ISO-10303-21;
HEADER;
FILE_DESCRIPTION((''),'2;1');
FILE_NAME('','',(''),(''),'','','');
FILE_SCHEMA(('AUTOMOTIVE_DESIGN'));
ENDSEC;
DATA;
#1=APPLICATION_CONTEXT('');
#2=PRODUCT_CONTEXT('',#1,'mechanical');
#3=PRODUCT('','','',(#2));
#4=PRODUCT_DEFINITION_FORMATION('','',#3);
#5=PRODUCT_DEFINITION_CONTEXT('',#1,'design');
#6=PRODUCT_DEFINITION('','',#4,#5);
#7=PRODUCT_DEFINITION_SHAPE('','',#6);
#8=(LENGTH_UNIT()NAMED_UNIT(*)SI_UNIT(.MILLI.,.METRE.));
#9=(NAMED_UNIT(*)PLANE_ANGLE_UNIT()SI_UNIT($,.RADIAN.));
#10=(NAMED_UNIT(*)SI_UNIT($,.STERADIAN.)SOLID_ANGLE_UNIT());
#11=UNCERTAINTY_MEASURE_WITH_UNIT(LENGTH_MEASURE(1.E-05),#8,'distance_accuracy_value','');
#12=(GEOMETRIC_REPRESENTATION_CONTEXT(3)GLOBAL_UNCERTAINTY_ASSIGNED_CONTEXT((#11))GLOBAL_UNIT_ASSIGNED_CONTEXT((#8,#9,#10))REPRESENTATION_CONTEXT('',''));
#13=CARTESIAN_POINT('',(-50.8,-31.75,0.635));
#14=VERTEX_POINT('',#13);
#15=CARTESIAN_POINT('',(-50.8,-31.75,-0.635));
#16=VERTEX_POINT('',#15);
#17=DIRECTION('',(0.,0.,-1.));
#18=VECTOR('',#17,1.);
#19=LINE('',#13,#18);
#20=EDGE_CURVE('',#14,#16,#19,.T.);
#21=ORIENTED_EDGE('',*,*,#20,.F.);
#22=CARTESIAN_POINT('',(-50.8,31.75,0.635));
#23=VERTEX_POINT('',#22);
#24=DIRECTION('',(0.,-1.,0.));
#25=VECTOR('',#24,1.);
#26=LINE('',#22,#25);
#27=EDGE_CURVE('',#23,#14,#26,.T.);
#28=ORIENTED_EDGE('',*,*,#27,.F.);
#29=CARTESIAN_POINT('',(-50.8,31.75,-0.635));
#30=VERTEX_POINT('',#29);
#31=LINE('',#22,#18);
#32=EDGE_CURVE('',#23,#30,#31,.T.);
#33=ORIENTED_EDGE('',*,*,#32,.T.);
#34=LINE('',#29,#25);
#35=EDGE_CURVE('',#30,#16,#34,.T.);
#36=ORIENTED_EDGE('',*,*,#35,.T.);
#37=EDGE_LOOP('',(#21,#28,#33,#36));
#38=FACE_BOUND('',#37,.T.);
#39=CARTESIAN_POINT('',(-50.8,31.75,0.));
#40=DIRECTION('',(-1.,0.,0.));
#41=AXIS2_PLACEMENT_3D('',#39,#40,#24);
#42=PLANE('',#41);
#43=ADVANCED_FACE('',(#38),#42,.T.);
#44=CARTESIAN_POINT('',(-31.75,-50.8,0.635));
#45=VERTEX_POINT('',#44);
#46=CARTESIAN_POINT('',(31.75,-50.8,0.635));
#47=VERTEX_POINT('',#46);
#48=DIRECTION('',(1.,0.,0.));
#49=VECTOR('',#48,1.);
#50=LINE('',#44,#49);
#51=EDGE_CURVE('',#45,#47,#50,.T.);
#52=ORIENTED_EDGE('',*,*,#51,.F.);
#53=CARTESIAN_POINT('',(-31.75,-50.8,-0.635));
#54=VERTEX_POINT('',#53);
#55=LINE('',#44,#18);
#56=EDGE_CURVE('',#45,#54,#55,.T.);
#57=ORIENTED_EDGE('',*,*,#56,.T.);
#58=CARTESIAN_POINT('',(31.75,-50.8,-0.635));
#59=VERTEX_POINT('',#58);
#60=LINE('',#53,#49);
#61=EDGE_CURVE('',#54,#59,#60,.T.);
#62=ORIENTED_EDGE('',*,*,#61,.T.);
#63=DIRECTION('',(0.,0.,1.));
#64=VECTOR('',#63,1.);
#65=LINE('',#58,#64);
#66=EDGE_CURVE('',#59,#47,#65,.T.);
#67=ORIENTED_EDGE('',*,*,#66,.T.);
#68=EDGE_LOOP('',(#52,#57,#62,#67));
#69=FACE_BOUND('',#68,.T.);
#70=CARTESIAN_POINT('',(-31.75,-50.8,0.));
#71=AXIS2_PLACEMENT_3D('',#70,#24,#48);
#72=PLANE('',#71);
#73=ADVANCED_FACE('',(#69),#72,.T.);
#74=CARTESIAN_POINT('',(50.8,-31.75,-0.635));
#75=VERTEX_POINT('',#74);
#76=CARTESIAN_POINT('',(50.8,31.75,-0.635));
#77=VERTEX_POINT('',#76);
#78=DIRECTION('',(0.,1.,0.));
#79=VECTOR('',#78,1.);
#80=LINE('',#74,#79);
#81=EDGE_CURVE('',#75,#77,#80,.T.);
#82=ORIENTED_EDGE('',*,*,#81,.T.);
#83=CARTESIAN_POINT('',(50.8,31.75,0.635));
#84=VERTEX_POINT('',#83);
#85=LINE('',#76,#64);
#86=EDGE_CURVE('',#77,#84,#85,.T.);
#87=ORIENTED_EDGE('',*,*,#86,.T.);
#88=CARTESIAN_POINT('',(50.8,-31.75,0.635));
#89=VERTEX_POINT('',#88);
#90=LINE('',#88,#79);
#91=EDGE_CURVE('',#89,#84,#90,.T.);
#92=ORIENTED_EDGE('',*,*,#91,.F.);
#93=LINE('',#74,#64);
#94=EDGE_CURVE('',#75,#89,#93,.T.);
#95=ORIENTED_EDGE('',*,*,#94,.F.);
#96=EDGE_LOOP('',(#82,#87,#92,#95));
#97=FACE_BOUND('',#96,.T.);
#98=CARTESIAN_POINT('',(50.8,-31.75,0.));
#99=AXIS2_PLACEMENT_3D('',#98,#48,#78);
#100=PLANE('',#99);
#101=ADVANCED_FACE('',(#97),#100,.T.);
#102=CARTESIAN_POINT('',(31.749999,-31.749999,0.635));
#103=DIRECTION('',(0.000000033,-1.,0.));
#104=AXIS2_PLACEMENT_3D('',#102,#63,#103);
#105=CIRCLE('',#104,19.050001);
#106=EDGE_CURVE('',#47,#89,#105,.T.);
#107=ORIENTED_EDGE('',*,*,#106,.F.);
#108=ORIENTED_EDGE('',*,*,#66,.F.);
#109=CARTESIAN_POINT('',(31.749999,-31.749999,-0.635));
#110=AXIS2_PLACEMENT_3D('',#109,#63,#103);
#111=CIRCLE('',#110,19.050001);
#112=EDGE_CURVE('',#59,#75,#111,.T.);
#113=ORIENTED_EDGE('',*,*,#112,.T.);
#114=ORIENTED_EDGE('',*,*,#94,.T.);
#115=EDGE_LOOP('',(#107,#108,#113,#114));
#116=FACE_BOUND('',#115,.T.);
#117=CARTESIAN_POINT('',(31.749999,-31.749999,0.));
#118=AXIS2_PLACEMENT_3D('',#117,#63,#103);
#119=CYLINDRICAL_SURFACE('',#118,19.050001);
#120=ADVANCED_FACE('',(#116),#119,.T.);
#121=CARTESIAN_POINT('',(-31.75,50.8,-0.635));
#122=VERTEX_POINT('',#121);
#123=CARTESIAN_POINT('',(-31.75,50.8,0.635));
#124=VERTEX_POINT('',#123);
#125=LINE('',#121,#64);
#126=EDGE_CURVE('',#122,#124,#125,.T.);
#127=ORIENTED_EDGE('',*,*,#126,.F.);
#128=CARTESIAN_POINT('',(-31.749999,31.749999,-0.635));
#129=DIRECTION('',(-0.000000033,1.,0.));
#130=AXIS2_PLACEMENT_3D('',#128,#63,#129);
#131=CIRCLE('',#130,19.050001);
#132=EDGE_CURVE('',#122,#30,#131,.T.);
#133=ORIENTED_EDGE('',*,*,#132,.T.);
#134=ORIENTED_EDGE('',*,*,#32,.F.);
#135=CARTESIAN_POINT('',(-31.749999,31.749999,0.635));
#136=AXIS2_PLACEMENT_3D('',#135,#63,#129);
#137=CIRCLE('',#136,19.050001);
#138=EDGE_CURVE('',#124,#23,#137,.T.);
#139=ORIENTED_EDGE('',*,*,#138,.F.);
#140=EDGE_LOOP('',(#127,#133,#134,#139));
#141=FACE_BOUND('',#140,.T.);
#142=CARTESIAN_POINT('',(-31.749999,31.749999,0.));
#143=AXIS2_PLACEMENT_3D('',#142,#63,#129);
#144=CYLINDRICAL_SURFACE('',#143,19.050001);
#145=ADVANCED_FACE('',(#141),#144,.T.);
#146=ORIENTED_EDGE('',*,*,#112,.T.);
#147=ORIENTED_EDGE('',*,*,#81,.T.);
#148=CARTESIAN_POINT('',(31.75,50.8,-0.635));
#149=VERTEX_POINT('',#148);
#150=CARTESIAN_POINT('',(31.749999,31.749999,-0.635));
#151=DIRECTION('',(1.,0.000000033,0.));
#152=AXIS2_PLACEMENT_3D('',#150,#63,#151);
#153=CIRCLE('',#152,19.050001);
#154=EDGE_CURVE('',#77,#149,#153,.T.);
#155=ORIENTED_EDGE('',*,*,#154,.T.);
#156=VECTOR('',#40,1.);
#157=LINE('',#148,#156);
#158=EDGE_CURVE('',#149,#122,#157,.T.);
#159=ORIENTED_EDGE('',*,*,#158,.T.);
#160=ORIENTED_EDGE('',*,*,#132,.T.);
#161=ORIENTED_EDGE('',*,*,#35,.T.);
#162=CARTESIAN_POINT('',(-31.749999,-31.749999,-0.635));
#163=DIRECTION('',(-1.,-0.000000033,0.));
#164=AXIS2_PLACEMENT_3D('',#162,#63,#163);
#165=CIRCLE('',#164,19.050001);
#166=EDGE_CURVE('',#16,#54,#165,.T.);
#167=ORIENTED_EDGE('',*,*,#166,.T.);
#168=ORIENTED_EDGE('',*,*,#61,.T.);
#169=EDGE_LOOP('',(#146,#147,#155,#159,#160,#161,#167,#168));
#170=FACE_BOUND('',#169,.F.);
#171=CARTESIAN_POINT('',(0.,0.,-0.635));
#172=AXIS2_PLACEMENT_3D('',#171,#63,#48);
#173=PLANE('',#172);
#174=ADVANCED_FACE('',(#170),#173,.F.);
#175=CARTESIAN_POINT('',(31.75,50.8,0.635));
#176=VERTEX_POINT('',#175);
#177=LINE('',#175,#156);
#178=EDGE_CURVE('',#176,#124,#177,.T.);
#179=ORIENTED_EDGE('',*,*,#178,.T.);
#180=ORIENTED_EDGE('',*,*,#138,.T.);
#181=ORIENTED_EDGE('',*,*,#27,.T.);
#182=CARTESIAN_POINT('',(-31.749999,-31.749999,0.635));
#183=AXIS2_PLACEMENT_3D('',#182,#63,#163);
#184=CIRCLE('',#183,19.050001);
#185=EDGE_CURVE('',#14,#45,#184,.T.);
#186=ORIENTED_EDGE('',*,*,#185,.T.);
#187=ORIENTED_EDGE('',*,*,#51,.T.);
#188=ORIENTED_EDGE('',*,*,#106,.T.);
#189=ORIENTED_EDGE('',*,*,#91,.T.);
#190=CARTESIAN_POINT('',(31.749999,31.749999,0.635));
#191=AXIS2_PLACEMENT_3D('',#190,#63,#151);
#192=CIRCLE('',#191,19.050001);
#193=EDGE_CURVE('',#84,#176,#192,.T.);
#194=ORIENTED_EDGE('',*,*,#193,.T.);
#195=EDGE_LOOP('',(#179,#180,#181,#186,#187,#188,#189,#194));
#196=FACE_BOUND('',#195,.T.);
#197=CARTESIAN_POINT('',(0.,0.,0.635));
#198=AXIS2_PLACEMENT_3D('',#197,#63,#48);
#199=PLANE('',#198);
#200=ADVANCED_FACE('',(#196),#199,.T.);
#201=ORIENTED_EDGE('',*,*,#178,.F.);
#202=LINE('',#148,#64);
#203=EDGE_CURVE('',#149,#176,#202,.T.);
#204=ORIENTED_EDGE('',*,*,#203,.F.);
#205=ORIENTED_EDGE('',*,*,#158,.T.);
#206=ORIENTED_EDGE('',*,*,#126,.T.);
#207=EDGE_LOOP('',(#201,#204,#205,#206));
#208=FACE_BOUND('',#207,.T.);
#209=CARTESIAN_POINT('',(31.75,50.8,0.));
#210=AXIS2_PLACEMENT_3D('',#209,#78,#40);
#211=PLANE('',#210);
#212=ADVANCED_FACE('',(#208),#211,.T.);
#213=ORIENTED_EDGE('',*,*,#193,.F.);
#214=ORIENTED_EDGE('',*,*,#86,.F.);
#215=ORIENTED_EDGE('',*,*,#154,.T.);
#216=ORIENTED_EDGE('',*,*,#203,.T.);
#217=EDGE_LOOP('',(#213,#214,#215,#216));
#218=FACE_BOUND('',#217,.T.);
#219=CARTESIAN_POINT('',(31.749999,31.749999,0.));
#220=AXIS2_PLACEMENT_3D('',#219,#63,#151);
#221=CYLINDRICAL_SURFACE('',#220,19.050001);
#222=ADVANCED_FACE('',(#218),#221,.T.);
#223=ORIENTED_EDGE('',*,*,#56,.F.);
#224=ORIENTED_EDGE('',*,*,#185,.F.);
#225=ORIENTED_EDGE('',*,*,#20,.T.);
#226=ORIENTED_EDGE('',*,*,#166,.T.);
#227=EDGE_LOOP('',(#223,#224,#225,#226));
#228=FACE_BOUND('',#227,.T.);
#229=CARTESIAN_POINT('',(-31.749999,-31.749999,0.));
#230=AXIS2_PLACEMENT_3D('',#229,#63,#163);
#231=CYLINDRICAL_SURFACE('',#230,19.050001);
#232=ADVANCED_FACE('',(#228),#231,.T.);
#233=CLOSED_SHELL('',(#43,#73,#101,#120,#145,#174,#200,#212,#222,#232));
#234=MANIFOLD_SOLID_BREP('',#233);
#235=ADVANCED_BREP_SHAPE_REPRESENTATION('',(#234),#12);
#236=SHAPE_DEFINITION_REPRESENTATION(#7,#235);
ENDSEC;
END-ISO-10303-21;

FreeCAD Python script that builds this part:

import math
import FreeCAD as App
import Part
import Sketcher

V = App.Vector
Q = App.Units.Quantity

doc = App.newDocument("Part")
params = doc.addObject("Spreadsheet::Sheet", "Params")
for row, (alias, value) in enumerate([
    ("sketch1_radius", "0.75 in"),
    ("sketch1_width", "2.5 in"),
    ("pad1_length", "0.05 in"),
], start=1):
    params.set(f"A{row}", alias)
    params.set(f"B{row}", "=" + value)
    params.setAlias(f"B{row}", alias)

body = doc.addObject("PartDesign::Body", "Body")

sketch1 = body.newObject("Sketcher::SketchObject", "Sketch")
sketch1.AttachmentSupport = (doc.getObject("XY_Plane"), [""])
sketch1.MapMode = "FlatFace"
sketch1.addGeometry([
    Part.LineSegment(V(-31.75, -50.8, 0), V(31.75, -50.8, 0)),
    Part.ArcOfCircle(Part.Circle(V(31.749999, -31.749999, 0), V(0, 0, 1), 19.050001), math.radians(-89.999998), math.radians(-0.000002)),
    Part.LineSegment(V(50.8, -31.75, 0), V(50.8, 31.75, 0)),
    Part.ArcOfCircle(Part.Circle(V(31.749999, 31.749999, 0), V(0, 0, 1), 19.050001), math.radians(0.000002), math.radians(89.999998)),
    Part.LineSegment(V(31.75, 50.8, 0), V(-31.75, 50.8, 0)),
    Part.ArcOfCircle(Part.Circle(V(-31.749999, 31.749999, 0), V(0, 0, 1), 19.050001), math.radians(90.000002), math.radians(179.999998)),
    Part.LineSegment(V(-50.8, 31.75, 0), V(-50.8, -31.75, 0)),
    Part.ArcOfCircle(Part.Circle(V(-31.749999, -31.749999, 0), V(0, 0, 1), 19.050001), math.radians(-179.999998), math.radians(-90.000002)),
], False)
sketch1.addConstraint([
    Sketcher.Constraint("Tangent", 0, 2, 1, 1),
    Sketcher.Constraint("Tangent", 1, 2, 2, 1),
    Sketcher.Constraint("Tangent", 2, 2, 3, 1),
    Sketcher.Constraint("Tangent", 3, 2, 4, 1),
    Sketcher.Constraint("Tangent", 4, 2, 5, 1),
    Sketcher.Constraint("Tangent", 5, 2, 6, 1),
    Sketcher.Constraint("Tangent", 6, 2, 7, 1),
    Sketcher.Constraint("Tangent", 7, 2, 0, 1),
    Sketcher.Constraint("Horizontal", 0),
    Sketcher.Constraint("Vertical", 2),
    Sketcher.Constraint("Horizontal", 4),
    Sketcher.Constraint("Vertical", 6),
    Sketcher.Constraint("Equal", 1, 3),
    Sketcher.Constraint("Equal", 3, 5),
    Sketcher.Constraint("Equal", 5, 7),
    Sketcher.Constraint("Symmetric", 1, 3, 5, 3, -1, 1),
    Sketcher.Constraint("Equal", 4, 2),
    Sketcher.Constraint("Radius", 1, Q("0.75 in")),
    Sketcher.Constraint("DistanceX", 0, 1, 0, 2, Q("2.5 in")),
])
sketch1.setExpression("Constraints[17]", "Params.sketch1_radius")
sketch1.setExpression("Constraints[18]", "Params.sketch1_width")
pad1 = body.newObject("PartDesign::Pad", "Pad")
pad1.Profile = sketch1
pad1.setExpression("Length", "Params.pad1_length")
pad1.Midplane = True

doc.recompute()
